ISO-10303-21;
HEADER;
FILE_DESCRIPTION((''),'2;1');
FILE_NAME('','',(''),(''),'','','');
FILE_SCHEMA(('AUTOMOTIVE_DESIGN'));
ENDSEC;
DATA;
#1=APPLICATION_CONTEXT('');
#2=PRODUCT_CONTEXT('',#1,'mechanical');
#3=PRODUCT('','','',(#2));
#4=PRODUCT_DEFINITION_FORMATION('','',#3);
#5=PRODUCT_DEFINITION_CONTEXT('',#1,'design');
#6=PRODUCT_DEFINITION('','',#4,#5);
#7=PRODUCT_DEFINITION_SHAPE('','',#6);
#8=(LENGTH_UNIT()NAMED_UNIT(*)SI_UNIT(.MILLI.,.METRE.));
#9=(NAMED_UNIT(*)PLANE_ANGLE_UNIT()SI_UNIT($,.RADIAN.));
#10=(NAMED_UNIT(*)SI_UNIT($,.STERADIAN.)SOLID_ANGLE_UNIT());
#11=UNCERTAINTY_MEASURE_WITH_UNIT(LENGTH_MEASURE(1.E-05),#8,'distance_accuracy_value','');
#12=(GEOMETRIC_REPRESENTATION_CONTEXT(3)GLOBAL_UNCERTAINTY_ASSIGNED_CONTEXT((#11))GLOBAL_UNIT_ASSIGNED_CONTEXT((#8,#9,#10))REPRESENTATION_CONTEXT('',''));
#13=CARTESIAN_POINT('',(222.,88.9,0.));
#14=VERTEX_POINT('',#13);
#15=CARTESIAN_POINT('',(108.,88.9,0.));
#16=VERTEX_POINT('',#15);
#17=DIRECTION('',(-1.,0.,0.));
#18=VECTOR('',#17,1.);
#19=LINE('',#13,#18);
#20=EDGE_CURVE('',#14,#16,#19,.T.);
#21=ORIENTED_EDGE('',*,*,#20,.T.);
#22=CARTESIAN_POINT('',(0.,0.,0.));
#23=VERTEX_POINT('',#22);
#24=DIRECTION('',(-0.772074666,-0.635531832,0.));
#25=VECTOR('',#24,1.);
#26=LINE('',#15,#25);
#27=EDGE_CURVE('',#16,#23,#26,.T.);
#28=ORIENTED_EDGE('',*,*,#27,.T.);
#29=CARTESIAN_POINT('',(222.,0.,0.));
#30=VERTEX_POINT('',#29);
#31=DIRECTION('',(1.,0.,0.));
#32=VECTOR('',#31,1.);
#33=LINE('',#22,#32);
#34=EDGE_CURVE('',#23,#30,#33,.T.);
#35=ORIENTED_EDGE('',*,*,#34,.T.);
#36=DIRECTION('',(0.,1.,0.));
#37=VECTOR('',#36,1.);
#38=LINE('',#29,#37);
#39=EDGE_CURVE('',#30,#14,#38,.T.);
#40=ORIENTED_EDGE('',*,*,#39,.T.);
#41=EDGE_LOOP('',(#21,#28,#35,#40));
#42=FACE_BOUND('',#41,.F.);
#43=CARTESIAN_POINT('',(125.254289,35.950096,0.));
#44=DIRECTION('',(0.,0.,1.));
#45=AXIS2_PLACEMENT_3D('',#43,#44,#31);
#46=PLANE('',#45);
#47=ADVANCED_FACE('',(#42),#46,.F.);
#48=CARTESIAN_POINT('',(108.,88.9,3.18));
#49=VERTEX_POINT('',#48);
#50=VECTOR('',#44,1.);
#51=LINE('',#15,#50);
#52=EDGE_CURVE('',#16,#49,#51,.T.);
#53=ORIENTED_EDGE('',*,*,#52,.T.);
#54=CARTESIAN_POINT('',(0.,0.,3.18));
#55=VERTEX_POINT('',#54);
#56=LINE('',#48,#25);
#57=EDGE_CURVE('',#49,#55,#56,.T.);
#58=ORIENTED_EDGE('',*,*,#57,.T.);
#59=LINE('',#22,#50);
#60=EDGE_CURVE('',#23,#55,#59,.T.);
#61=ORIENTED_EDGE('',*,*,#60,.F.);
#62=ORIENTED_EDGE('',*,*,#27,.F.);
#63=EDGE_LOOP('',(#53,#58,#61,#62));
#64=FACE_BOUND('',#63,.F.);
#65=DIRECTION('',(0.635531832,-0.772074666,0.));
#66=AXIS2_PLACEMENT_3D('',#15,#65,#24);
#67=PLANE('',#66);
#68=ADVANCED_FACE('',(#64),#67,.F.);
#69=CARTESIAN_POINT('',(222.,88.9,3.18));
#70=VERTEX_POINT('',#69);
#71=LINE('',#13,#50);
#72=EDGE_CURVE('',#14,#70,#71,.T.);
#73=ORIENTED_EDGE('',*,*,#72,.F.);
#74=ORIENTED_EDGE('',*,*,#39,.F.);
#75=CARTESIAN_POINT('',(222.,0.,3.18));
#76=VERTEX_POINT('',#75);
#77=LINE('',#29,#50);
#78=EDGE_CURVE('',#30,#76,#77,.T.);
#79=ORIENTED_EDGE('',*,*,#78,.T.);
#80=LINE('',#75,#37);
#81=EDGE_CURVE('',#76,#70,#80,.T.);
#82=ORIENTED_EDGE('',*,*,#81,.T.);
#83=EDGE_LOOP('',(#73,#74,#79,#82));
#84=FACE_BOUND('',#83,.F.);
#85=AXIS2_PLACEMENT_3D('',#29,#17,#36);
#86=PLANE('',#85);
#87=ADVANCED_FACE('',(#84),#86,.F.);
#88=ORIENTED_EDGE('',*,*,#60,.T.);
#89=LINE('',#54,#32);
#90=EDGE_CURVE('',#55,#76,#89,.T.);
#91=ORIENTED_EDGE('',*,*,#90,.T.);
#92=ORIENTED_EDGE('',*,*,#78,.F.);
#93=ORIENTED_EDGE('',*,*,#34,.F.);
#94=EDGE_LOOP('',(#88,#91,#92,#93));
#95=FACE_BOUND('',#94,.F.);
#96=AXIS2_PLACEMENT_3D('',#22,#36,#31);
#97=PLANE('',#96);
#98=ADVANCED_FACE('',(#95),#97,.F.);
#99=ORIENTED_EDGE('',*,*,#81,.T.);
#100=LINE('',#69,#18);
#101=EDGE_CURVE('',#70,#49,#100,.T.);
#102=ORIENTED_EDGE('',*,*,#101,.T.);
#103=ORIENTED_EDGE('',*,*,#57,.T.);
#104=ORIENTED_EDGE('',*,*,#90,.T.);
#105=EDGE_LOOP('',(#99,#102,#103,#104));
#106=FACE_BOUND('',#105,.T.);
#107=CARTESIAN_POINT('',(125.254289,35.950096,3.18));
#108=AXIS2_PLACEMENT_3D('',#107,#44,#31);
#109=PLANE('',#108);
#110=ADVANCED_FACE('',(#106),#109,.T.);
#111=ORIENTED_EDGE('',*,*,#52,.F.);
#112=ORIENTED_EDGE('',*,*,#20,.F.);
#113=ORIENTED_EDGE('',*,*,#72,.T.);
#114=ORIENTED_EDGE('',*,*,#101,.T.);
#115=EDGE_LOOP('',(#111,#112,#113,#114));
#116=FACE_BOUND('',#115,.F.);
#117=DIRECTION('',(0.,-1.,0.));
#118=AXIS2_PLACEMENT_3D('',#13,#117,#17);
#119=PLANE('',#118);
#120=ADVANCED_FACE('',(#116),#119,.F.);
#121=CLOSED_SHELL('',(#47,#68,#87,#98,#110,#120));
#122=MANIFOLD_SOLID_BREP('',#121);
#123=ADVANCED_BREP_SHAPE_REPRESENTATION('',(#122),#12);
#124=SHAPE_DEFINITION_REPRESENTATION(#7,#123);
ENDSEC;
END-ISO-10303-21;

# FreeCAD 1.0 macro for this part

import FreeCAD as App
import Part
import Sketcher

V = App.Vector
Q = App.Units.Quantity


def add_polygon(sketch, points):
    """Adds a closed chain of lines whose ends are joined by coincident constraints."""
    first, n = sketch.GeometryCount, len(points)
    for a, b in zip(points, points[1:] + points[:1]):
        sketch.addGeometry(Part.LineSegment(App.Vector(*a, 0), App.Vector(*b, 0)), False)
    for i in range(n):
        sketch.addConstraint(Sketcher.Constraint("Coincident", first + i, 2, first + (i + 1) % n, 1))

doc = App.newDocument("Part")
body = doc.addObject("PartDesign::Body", "Body")

# Sketch on XY plane
sketch1 = doc.addObject("Sketcher::SketchObject", "Sketch")
body.addObject(sketch1)
sketch1.AttachmentSupport = (doc.XY_Plane, [""])
sketch1.MapMode = "FlatFace"
add_polygon(sketch1, [(0, 0), (222, 0), (222, 89), (108, 89)])  # lines 0-3
sketch1.addConstraint(Sketcher.Constraint("Horizontal", 0))
sketch1.addConstraint(Sketcher.Constraint("Vertical", 1))
sketch1.addConstraint(Sketcher.Constraint("Horizontal", 2))
sketch1.addConstraint(Sketcher.Constraint("Coincident", 3, 2, -1, 1))
sketch1.addConstraint(Sketcher.Constraint("DistanceX", 0, 1, 0, 2, Q("222 mm")))
sketch1.addConstraint(Sketcher.Constraint("DistanceX", 2, 2, 2, 1, Q("114 mm")))
sketch1.addConstraint(Sketcher.Constraint("DistanceY", 1, 1, 1, 2, Q("88.9 mm")))
pad1 = doc.addObject("PartDesign::Pad", "Pad")
body.addObject(pad1)
pad1.Profile = sketch1
pad1.Length = 3.18

doc.recompute()
